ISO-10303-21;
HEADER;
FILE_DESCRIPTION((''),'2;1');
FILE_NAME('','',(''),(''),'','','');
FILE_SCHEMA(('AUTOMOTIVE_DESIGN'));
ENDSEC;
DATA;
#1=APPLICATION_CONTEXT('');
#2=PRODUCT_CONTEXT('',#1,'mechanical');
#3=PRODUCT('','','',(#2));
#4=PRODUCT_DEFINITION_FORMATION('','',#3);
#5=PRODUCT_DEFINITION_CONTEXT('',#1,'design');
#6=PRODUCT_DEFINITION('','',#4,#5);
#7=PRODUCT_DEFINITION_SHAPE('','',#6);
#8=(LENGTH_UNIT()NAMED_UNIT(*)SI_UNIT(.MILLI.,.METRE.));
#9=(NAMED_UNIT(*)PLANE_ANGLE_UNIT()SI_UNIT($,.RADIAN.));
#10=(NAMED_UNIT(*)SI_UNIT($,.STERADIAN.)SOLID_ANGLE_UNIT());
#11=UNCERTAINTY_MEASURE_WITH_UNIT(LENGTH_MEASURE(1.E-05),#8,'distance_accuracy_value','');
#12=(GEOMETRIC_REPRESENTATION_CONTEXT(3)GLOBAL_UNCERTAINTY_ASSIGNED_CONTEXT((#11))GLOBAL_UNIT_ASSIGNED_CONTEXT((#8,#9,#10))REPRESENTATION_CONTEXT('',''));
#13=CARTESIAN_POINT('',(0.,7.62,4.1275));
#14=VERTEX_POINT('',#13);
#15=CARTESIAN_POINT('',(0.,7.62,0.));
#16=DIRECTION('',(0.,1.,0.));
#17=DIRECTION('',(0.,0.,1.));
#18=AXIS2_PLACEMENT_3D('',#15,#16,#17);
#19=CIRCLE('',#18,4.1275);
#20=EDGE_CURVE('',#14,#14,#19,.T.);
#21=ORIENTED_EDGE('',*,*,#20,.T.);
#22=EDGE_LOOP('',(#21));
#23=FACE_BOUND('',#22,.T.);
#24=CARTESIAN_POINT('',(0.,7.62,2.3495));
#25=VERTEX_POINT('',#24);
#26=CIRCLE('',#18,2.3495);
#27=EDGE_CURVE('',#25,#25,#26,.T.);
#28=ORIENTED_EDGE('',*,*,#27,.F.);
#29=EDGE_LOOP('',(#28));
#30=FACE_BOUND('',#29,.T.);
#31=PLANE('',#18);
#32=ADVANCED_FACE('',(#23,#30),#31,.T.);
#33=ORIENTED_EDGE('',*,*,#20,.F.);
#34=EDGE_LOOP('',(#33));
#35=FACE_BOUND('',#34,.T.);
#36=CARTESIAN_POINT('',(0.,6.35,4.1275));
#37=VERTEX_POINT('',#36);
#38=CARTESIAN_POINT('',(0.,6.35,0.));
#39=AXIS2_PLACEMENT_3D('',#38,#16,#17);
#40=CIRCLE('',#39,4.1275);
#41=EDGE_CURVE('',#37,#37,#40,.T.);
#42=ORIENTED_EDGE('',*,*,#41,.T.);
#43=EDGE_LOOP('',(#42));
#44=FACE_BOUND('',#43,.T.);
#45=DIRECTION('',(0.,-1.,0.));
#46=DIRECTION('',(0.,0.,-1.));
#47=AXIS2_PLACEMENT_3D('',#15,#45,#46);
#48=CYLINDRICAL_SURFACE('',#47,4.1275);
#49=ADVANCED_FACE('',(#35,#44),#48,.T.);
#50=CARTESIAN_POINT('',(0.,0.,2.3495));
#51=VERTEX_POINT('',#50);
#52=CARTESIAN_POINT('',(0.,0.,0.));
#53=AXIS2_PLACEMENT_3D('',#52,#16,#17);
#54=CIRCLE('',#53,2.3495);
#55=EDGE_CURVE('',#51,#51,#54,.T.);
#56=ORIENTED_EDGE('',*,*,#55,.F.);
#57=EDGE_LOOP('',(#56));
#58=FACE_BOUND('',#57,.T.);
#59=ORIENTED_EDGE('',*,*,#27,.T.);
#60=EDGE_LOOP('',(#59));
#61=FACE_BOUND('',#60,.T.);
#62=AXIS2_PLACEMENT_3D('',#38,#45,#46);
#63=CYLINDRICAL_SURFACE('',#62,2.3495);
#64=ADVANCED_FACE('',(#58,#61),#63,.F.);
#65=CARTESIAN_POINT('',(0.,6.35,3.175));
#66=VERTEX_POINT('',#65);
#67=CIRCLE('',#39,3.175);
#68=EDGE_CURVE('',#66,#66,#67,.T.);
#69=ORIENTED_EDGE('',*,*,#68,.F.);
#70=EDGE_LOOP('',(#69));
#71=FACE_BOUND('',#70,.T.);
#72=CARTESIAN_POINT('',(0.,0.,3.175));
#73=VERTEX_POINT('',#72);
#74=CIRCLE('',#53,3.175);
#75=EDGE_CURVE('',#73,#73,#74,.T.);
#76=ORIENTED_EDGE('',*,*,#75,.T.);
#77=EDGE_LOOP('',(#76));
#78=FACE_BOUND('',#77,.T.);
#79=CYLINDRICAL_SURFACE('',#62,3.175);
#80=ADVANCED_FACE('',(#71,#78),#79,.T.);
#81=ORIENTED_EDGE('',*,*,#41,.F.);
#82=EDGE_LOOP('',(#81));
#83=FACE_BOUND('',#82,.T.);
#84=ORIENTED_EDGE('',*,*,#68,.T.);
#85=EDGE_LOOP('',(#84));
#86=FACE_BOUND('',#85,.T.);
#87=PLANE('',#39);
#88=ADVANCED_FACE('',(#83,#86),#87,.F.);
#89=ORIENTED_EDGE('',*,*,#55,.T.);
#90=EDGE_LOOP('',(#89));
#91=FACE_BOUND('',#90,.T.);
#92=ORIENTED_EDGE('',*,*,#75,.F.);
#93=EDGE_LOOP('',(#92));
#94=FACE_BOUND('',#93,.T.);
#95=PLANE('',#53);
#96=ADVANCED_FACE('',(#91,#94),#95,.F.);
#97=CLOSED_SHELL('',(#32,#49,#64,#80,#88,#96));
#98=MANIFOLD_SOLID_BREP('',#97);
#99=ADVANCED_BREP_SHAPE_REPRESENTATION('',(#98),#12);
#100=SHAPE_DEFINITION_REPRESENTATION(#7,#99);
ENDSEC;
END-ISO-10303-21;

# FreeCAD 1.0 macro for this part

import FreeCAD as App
import Part
import Sketcher
Q = App.Units.Quantity

doc = App.newDocument("Part")
body = doc.addObject("PartDesign::Body", "Body")

# Sketch on XZ plane
sketch1 = body.newObject("Sketcher::SketchObject", "Sketch")
sketch1.AttachmentSupport = (doc.getObject("XZ_Plane"), [""])
sketch1.MapMode = "FlatFace"
sketch1.addGeometry([
    Part.Circle(App.Vector(0, 0, 0), App.Vector(0, 0, 1), 3.2),
    Part.Circle(App.Vector(0, 0, 0), App.Vector(0, 0, 1), 2.3),
], False)
sketch1.addConstraint([
    Sketcher.Constraint("Coincident", 0, 3, -1, 1),
    Sketcher.Constraint("Coincident", 1, 3, -1, 1),
    Sketcher.Constraint("Diameter", 0, Q("0.25 in")),
    Sketcher.Constraint("Diameter", 1, Q("0.185 in")),
])
pad1 = body.newObject("PartDesign::Pad", "Pad")
pad1.Profile = sketch1
pad1.Length = Q("0.25 in")
pad1.Reversed = True

# Sketch on XZ plane
sketch2 = body.newObject("Sketcher::SketchObject", "Sketch001")
sketch2.AttachmentSupport = (doc.getObject("XZ_Plane"), [""])
sketch2.MapMode = "FlatFace"
sketch2.AttachmentOffset = App.Placement(App.Vector(0, 0, -0.25 * 25.4), App.Rotation())
sketch2.addGeometry([
    Part.Circle(App.Vector(0, 0, 0), App.Vector(0, 0, 1), 4.1),
    Part.Circle(App.Vector(0, 0, 0), App.Vector(0, 0, 1), 2.3),
], False)
sketch2.addConstraint([
    Sketcher.Constraint("Coincident", 0, 3, -1, 1),
    Sketcher.Constraint("Coincident", 1, 3, -1, 1),
    Sketcher.Constraint("Diameter", 0, Q("0.325 in")),
    Sketcher.Constraint("Diameter", 1, Q("0.185 in")),
])
pad2 = body.newObject("PartDesign::Pad", "Pad001")
pad2.Profile = sketch2
pad2.Length = Q("0.05 in")
pad2.Reversed = True

doc.recompute()
